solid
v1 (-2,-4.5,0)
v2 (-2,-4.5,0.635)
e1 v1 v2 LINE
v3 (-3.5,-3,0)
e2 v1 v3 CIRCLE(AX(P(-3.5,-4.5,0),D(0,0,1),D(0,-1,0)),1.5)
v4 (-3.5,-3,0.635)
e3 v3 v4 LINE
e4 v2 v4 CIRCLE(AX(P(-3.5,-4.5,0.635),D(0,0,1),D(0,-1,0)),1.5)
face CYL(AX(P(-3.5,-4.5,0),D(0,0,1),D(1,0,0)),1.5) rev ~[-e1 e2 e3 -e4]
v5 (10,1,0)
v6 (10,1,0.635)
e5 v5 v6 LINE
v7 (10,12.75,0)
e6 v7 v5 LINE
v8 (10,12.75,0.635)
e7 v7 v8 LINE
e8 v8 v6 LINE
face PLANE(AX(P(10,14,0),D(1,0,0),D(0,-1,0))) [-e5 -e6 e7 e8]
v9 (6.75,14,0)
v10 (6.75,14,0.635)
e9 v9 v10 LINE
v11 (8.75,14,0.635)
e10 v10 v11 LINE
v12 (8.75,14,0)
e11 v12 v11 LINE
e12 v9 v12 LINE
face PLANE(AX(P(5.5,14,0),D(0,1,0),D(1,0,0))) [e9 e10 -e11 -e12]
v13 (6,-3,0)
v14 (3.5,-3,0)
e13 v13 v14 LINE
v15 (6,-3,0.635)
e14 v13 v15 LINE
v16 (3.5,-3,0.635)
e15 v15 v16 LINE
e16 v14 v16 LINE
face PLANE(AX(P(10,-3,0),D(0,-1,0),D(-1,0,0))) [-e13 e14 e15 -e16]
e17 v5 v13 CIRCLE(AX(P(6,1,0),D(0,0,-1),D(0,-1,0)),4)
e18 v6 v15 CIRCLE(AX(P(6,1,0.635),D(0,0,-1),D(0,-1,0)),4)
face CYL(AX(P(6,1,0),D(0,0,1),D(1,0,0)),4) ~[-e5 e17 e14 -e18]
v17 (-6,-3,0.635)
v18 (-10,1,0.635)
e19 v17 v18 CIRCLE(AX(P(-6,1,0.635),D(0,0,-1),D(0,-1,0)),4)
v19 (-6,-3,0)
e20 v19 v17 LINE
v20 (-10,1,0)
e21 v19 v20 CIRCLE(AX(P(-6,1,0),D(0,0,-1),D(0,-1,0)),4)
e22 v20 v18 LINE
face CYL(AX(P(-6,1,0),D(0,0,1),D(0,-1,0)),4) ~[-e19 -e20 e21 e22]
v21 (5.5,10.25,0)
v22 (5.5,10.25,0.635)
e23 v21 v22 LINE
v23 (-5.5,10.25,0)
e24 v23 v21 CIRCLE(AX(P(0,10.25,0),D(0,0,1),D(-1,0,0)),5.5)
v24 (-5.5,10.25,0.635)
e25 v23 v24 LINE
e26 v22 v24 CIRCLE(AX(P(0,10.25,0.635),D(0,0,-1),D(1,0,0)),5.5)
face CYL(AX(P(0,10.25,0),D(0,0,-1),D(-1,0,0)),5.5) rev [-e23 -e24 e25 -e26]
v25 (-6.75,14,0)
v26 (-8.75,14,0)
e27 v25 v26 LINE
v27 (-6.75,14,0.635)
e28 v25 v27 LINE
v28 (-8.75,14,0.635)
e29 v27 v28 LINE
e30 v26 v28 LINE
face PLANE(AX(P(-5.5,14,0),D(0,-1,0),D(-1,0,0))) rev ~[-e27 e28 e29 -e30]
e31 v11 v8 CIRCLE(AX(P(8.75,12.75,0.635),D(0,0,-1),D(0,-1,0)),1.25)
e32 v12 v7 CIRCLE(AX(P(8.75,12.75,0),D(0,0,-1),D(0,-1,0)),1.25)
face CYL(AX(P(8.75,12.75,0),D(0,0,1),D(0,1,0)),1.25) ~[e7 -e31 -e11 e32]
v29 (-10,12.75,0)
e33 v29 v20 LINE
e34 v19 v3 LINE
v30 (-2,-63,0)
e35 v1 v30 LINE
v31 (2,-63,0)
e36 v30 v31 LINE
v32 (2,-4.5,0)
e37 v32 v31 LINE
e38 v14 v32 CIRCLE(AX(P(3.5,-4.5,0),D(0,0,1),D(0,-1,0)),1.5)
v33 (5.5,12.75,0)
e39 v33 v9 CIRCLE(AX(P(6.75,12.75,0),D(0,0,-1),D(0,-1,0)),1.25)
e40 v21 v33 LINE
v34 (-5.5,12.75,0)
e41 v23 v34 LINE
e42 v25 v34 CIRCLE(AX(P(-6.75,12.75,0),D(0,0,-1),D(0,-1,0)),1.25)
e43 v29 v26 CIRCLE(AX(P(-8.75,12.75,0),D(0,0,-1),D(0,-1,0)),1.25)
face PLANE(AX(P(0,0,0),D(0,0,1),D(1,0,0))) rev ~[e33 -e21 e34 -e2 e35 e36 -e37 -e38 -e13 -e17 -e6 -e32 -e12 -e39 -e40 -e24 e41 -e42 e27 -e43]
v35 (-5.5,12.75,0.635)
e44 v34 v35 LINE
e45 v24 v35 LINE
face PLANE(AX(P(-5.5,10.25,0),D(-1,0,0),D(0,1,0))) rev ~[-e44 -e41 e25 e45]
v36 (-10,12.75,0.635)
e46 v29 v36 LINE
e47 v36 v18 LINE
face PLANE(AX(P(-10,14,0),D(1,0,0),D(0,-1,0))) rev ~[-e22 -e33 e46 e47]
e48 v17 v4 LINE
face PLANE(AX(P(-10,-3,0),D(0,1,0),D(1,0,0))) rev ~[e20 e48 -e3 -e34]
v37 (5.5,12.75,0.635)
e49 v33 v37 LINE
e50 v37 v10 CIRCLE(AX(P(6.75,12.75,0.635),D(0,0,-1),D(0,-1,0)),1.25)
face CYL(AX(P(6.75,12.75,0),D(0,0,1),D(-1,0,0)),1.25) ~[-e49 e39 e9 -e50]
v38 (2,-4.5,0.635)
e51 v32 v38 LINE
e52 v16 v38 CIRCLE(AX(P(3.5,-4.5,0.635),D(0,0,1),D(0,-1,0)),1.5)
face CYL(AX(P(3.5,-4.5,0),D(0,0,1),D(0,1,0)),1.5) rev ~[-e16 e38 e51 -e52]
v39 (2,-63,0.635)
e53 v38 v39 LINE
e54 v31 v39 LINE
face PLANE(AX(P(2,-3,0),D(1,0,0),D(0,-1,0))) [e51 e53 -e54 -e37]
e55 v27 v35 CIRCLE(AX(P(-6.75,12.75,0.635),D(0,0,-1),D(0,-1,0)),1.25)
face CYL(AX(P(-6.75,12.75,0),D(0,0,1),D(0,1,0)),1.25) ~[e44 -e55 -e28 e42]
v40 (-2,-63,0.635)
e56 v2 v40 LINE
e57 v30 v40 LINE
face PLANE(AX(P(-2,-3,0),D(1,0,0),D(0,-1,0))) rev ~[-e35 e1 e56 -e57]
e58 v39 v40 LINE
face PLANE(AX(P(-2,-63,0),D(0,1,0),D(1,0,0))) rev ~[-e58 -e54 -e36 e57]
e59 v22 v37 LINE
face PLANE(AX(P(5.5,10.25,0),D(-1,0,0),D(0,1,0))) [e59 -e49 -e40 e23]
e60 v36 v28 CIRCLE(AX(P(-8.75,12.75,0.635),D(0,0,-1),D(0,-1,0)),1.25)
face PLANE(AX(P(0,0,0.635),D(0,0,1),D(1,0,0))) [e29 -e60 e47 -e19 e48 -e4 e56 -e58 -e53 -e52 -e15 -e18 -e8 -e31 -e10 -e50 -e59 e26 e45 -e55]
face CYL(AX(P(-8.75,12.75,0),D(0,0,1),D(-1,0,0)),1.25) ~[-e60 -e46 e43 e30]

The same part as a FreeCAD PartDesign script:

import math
import FreeCAD as App
import Part
import Sketcher

V = App.Vector
Q = App.Units.Quantity


def edges_at(feature, points):
    """Names of the edges that pass closest to the given points."""
    edges = feature.Shape.Edges
    near = lambda p: min(range(len(edges)), key=lambda i: edges[i].distToShape(Part.Vertex(*p))[0])
    return sorted({f"Edge{near(p) + 1}" for p in points})

doc = App.newDocument("Part")
body = doc.addObject("PartDesign::Body", "Body")

# Sketch on XY plane
sketch1 = body.newObject("Sketcher::SketchObject", "Sketch")
sketch1.AttachmentSupport = (doc.getObject("XY_Plane"), [""])
sketch1.MapMode = "FlatFace"
sketch1.addGeometry(Part.LineSegment(V(-2, -63, 0), V(2, -63, 0)), False)
sketch1.addGeometry(Part.LineSegment(V(2, -63, 0), V(2, -3, 0)), False)
sketch1.addGeometry(Part.LineSegment(V(2, -3, 0), V(10, -3, 0)), False)
sketch1.addGeometry(Part.LineSegment(V(10, -3, 0), V(10, 14, 0)), False)
sketch1.addGeometry(Part.LineSegment(V(10, 14, 0), V(5.5, 14, 0)), False)
sketch1.addGeometry(Part.LineSegment(V(5.5, 14, 0), V(5.5, 10.25, 0)), False)
sketch1.addGeometry(Part.ArcOfCircle(Part.Circle(V(0, 10.25, 0), V(0, 0, 1), 5.5), math.radians(180), math.radians(360)), False)
sketch1.addGeometry(Part.LineSegment(V(-5.5, 10.25, 0), V(-5.5, 14, 0)), False)
sketch1.addGeometry(Part.LineSegment(V(-5.5, 14, 0), V(-10, 14, 0)), False)
sketch1.addGeometry(Part.LineSegment(V(-10, 14, 0), V(-10, -3, 0)), False)
sketch1.addGeometry(Part.LineSegment(V(-10, -3, 0), V(-2, -3, 0)), False)
sketch1.addGeometry(Part.LineSegment(V(-2, -3, 0), V(-2, -63, 0)), False)
sketch1.addConstraint(Sketcher.Constraint("Coincident", 0, 2, 1, 1))
sketch1.addConstraint(Sketcher.Constraint("Coincident", 1, 2, 2, 1))
sketch1.addConstraint(Sketcher.Constraint("Coincident", 2, 2, 3, 1))
sketch1.addConstraint(Sketcher.Constraint("Coincident", 3, 2, 4, 1))
sketch1.addConstraint(Sketcher.Constraint("Coincident", 4, 2, 5, 1))
sketch1.addConstraint(Sketcher.Constraint("Tangent", 5, 2, 6, 2))
sketch1.addConstraint(Sketcher.Constraint("Tangent", 6, 1, 7, 1))
sketch1.addConstraint(Sketcher.Constraint("Coincident", 7, 2, 8, 1))
sketch1.addConstraint(Sketcher.Constraint("Coincident", 8, 2, 9, 1))
sketch1.addConstraint(Sketcher.Constraint("Coincident", 9, 2, 10, 1))
sketch1.addConstraint(Sketcher.Constraint("Coincident", 10, 2, 11, 1))
sketch1.addConstraint(Sketcher.Constraint("Coincident", 11, 2, 0, 1))
sketch1.addConstraint(Sketcher.Constraint("Horizontal", 0))
sketch1.addConstraint(Sketcher.Constraint("Vertical", 1))
sketch1.addConstraint(Sketcher.Constraint("Horizontal", 2))
sketch1.addConstraint(Sketcher.Constraint("Vertical", 3))
sketch1.addConstraint(Sketcher.Constraint("Horizontal", 4))
sketch1.addConstraint(Sketcher.Constraint("Vertical", 5))
sketch1.addConstraint(Sketcher.Constraint("Vertical", 7))
sketch1.addConstraint(Sketcher.Constraint("Horizontal", 8))
sketch1.addConstraint(Sketcher.Constraint("Vertical", 9))
sketch1.addConstraint(Sketcher.Constraint("Horizontal", 10))
sketch1.addConstraint(Sketcher.Constraint("Vertical", 11))
sketch1.addConstraint(Sketcher.Constraint("Symmetric", 4, 2, 7, 2, -2))
sketch1.addConstraint(Sketcher.Constraint("Symmetric", 2, 2, 9, 2, -2))
sketch1.addConstraint(Sketcher.Constraint("Equal", 2, 10))
sketch1.addConstraint(Sketcher.Constraint("Radius", 6, Q("5.5 mm")))
sketch1.addConstraint(Sketcher.Constraint("DistanceX", 0, 1, 0, 2, Q("4 mm")))
sketch1.addConstraint(Sketcher.Constraint("DistanceY", 1, 1, 1, 2, Q("60 mm")))
sketch1.addConstraint(Sketcher.Constraint("DistanceY", 3, 1, 3, 2, Q("17 mm")))
sketch1.addConstraint(Sketcher.Constraint("DistanceX", 4, 2, 4, 1, Q("4.5 mm")))
sketch1.addConstraint(Sketcher.Constraint("DistanceY", 5, 2, 5, 1, Q("3.75 mm")))
sketch1.addConstraint(Sketcher.Constraint("DistanceY", 0, 2, -1, 1, Q("63 mm")))
pad1 = body.newObject("PartDesign::Pad", "Pad")
pad1.Profile = sketch1
pad1.Length = 0.635
doc.recompute()

fillet = body.newObject("PartDesign::Fillet", "Fillet")
fillet.Base = (pad1, edges_at(pad1, [
    (-10, 14, 0.318),
    (10, 14, 0.318),
    (-5.5, 14, 0.318),
    (5.5, 14, 0.318),
]))
fillet.Radius = 1.25
doc.recompute()

fillet2 = body.newObject("PartDesign::Fillet", "Fillet001")
fillet2.Base = (fillet, edges_at(fillet, [(-10, -3, 0.318), (10, -3, 0.318)]))
fillet2.Radius = 4
doc.recompute()

fillet3 = body.newObject("PartDesign::Fillet", "Fillet002")
fillet3.Base = (fillet2, edges_at(fillet2, [(-2, -3, 0.318), (2, -3, 0.318)]))
fillet3.Radius = 1.5

doc.recompute()
